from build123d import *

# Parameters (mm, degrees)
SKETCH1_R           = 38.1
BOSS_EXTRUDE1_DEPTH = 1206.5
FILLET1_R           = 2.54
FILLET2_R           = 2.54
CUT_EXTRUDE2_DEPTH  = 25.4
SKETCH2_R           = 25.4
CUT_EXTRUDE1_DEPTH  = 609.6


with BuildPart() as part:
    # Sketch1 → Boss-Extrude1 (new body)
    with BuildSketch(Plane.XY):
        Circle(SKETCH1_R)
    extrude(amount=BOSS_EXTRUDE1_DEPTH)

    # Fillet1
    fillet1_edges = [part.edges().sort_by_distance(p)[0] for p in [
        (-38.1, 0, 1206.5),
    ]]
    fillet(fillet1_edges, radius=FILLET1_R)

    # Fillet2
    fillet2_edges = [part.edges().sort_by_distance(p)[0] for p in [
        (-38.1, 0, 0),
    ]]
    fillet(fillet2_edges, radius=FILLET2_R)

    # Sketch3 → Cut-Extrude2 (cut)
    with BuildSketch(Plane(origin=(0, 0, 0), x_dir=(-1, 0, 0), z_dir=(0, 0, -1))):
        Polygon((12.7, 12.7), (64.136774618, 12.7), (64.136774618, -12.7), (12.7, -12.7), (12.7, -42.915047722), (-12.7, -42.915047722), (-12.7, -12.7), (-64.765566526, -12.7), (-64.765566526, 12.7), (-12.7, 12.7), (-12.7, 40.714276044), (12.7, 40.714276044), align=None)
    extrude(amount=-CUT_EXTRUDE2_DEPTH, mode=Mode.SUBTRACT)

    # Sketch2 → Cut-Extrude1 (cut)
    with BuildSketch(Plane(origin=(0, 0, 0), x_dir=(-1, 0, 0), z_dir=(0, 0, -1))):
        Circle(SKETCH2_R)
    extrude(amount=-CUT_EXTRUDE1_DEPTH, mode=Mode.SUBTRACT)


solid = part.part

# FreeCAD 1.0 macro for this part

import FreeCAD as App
import Part
import Sketcher
from FreeCAD import Vector
Q = App.Units.Quantity


def edges_at(feature, points):
    """Names of the edges that pass closest to the given points."""
    edges = feature.Shape.Edges
    near = lambda p: min(range(len(edges)), key=lambda i: edges[i].distToShape(Part.Vertex(*p))[0])
    return sorted({f"Edge{near(p) + 1}" for p in points})

doc = App.newDocument("Part")
body = doc.addObject("PartDesign::Body", "Body")

# Sketch on XY plane
sketch1 = doc.addObject("Sketcher::SketchObject", "Sketch")
body.addObject(sketch1)
sketch1.AttachmentSupport = (doc.XY_Plane, [""])
sketch1.MapMode = "FlatFace"
sketch1.addGeometry(Part.Circle(Vector(0, 0, 0), Vector(0, 0, 1), 38), False)
sketch1.addConstraint(Sketcher.Constraint("Coincident", 0, 3, -1, 1))
sketch1.addConstraint(Sketcher.Constraint("Diameter", 0, Q("3 in")))
pad1 = doc.addObject("PartDesign::Pad", "Pad")
body.addObject(pad1)
pad1.Profile = sketch1
pad1.Length = Q("47.5 in")
doc.recompute()

fillet = doc.addObject("PartDesign::Fillet", "Fillet")
body.addObject(fillet)
fillet.Base = (pad1, edges_at(pad1, [(-38.1, 0, 1206.5)]))
fillet.Radius = Q("0.1 in")
doc.recompute()

fillet2 = doc.addObject("PartDesign::Fillet", "Fillet001")
body.addObject(fillet2)
fillet2.Base = (fillet, edges_at(fillet, [(-38.1, 0, 0)]))
fillet2.Radius = Q("0.1 in")

# Sketch on XY plane
sketch2 = doc.addObject("Sketcher::SketchObject", "Sketch001")
body.addObject(sketch2)
sketch2.AttachmentSupport = (doc.XY_Plane, [""])
sketch2.MapMode = "FlatFace"
sketch2.addGeometry(Part.LineSegment(Vector(-64, 13, 0), Vector(-13, 13, 0)), False)
sketch2.addGeometry(Part.LineSegment(Vector(-13, 13, 0), Vector(-13, 41, 0)), False)
sketch2.addGeometry(Part.LineSegment(Vector(-13, 41, 0), Vector(13, 41, 0)), False)
sketch2.addGeometry(Part.LineSegment(Vector(13, 41, 0), Vector(13, 13, 0)), False)
sketch2.addGeometry(Part.LineSegment(Vector(13, 13, 0), Vector(65, 13, 0)), False)
sketch2.addGeometry(Part.LineSegment(Vector(65, 13, 0), Vector(65, -13, 0)), False)
sketch2.addGeometry(Part.LineSegment(Vector(65, -13, 0), Vector(13, -13, 0)), False)
sketch2.addGeometry(Part.LineSegment(Vector(13, -13, 0), Vector(13, -43, 0)), False)
sketch2.addGeometry(Part.LineSegment(Vector(13, -43, 0), Vector(-13, -43, 0)), False)
sketch2.addGeometry(Part.LineSegment(Vector(-13, -43, 0), Vector(-13, -13, 0)), False)
sketch2.addGeometry(Part.LineSegment(Vector(-13, -13, 0), Vector(-64, -13, 0)), False)
sketch2.addGeometry(Part.LineSegment(Vector(-64, -13, 0), Vector(-64, 13, 0)), False)
sketch2.addConstraint(Sketcher.Constraint("Coincident", 0, 2, 1, 1))
sketch2.addConstraint(Sketcher.Constraint("Coincident", 1, 2, 2, 1))
sketch2.addConstraint(Sketcher.Constraint("Coincident", 2, 2, 3, 1))
sketch2.addConstraint(Sketcher.Constraint("Coincident", 3, 2, 4, 1))
sketch2.addConstraint(Sketcher.Constraint("Coincident", 4, 2, 5, 1))
sketch2.addConstraint(Sketcher.Constraint("Coincident", 5, 2, 6, 1))
sketch2.addConstraint(Sketcher.Constraint("Coincident", 6, 2, 7, 1))
sketch2.addConstraint(Sketcher.Constraint("Coincident", 7, 2, 8, 1))
sketch2.addConstraint(Sketcher.Constraint("Coincident", 8, 2, 9, 1))
sketch2.addConstraint(Sketcher.Constraint("Coincident", 9, 2, 10, 1))
sketch2.addConstraint(Sketcher.Constraint("Coincident", 10, 2, 11, 1))
sketch2.addConstraint(Sketcher.Constraint("Coincident", 11, 2, 0, 1))
sketch2.addConstraint(Sketcher.Constraint("Horizontal", 0))
sketch2.addConstraint(Sketcher.Constraint("Vertical", 1))
sketch2.addConstraint(Sketcher.Constraint("Horizontal", 2))
sketch2.addConstraint(Sketcher.Constraint("Vertical", 3))
sketch2.addConstraint(Sketcher.Constraint("Horizontal", 4))
sketch2.addConstraint(Sketcher.Constraint("Vertical", 5))
sketch2.addConstraint(Sketcher.Constraint("Horizontal", 6))
sketch2.addConstraint(Sketcher.Constraint("Vertical", 7))
sketch2.addConstraint(Sketcher.Constraint("Horizontal", 8))
sketch2.addConstraint(Sketcher.Constraint("Vertical", 9))
sketch2.addConstraint(Sketcher.Constraint("Horizontal", 10))
sketch2.addConstraint(Sketcher.Constraint("Vertical", 11))
sketch2.addConstraint(Sketcher.Constraint("Symmetric", 0, 2, 6, 2, -1, 1))
sketch2.addConstraint(Sketcher.Constraint("Symmetric", 3, 2, 9, 2, -1, 1))
sketch2.addConstraint(Sketcher.Constraint("Symmetric", 0, 2, 3, 2, -2))
sketch2.addConstraint(Sketcher.Constraint("Equal", 8, 5))
sketch2.addConstraint(Sketcher.Constraint("DistanceX", 2, 1, 2, 2, Q("1 in")))
sketch2.addConstraint(Sketcher.Constraint("DistanceX", 0, 1, 0, 2, Q("51.436775 mm")))
sketch2.addConstraint(Sketcher.Constraint("DistanceX", 4, 1, 4, 2, Q("52.065567 mm")))
sketch2.addConstraint(Sketcher.Constraint("DistanceY", 1, 1, 1, 2, Q("28.014276 mm")))
sketch2.addConstraint(Sketcher.Constraint("DistanceY", 7, 2, 7, 1, Q("30.215048 mm")))
pocket1 = doc.addObject("PartDesign::Pocket", "Pocket")
body.addObject(pocket1)
pocket1.Profile = sketch2
pocket1.Length = Q("1 in")
pocket1.Reversed = True

# Sketch on XY plane
sketch3 = doc.addObject("Sketcher::SketchObject", "Sketch002")
body.addObject(sketch3)
sketch3.AttachmentSupport = (doc.XY_Plane, [""])
sketch3.MapMode = "FlatFace"
sketch3.addGeometry(Part.Circle(Vector(0, 0, 0), Vector(0, 0, 1), 25), False)
sketch3.addConstraint(Sketcher.Constraint("Coincident", 0, 3, -1, 1))
sketch3.addConstraint(Sketcher.Constraint("Diameter", 0, Q("2 in")))
pocket2 = doc.addObject("PartDesign::Pocket", "Pocket001")
body.addObject(pocket2)
pocket2.Profile = sketch3
pocket2.Length = Q("24 in")
pocket2.Reversed = True

doc.recompute()
